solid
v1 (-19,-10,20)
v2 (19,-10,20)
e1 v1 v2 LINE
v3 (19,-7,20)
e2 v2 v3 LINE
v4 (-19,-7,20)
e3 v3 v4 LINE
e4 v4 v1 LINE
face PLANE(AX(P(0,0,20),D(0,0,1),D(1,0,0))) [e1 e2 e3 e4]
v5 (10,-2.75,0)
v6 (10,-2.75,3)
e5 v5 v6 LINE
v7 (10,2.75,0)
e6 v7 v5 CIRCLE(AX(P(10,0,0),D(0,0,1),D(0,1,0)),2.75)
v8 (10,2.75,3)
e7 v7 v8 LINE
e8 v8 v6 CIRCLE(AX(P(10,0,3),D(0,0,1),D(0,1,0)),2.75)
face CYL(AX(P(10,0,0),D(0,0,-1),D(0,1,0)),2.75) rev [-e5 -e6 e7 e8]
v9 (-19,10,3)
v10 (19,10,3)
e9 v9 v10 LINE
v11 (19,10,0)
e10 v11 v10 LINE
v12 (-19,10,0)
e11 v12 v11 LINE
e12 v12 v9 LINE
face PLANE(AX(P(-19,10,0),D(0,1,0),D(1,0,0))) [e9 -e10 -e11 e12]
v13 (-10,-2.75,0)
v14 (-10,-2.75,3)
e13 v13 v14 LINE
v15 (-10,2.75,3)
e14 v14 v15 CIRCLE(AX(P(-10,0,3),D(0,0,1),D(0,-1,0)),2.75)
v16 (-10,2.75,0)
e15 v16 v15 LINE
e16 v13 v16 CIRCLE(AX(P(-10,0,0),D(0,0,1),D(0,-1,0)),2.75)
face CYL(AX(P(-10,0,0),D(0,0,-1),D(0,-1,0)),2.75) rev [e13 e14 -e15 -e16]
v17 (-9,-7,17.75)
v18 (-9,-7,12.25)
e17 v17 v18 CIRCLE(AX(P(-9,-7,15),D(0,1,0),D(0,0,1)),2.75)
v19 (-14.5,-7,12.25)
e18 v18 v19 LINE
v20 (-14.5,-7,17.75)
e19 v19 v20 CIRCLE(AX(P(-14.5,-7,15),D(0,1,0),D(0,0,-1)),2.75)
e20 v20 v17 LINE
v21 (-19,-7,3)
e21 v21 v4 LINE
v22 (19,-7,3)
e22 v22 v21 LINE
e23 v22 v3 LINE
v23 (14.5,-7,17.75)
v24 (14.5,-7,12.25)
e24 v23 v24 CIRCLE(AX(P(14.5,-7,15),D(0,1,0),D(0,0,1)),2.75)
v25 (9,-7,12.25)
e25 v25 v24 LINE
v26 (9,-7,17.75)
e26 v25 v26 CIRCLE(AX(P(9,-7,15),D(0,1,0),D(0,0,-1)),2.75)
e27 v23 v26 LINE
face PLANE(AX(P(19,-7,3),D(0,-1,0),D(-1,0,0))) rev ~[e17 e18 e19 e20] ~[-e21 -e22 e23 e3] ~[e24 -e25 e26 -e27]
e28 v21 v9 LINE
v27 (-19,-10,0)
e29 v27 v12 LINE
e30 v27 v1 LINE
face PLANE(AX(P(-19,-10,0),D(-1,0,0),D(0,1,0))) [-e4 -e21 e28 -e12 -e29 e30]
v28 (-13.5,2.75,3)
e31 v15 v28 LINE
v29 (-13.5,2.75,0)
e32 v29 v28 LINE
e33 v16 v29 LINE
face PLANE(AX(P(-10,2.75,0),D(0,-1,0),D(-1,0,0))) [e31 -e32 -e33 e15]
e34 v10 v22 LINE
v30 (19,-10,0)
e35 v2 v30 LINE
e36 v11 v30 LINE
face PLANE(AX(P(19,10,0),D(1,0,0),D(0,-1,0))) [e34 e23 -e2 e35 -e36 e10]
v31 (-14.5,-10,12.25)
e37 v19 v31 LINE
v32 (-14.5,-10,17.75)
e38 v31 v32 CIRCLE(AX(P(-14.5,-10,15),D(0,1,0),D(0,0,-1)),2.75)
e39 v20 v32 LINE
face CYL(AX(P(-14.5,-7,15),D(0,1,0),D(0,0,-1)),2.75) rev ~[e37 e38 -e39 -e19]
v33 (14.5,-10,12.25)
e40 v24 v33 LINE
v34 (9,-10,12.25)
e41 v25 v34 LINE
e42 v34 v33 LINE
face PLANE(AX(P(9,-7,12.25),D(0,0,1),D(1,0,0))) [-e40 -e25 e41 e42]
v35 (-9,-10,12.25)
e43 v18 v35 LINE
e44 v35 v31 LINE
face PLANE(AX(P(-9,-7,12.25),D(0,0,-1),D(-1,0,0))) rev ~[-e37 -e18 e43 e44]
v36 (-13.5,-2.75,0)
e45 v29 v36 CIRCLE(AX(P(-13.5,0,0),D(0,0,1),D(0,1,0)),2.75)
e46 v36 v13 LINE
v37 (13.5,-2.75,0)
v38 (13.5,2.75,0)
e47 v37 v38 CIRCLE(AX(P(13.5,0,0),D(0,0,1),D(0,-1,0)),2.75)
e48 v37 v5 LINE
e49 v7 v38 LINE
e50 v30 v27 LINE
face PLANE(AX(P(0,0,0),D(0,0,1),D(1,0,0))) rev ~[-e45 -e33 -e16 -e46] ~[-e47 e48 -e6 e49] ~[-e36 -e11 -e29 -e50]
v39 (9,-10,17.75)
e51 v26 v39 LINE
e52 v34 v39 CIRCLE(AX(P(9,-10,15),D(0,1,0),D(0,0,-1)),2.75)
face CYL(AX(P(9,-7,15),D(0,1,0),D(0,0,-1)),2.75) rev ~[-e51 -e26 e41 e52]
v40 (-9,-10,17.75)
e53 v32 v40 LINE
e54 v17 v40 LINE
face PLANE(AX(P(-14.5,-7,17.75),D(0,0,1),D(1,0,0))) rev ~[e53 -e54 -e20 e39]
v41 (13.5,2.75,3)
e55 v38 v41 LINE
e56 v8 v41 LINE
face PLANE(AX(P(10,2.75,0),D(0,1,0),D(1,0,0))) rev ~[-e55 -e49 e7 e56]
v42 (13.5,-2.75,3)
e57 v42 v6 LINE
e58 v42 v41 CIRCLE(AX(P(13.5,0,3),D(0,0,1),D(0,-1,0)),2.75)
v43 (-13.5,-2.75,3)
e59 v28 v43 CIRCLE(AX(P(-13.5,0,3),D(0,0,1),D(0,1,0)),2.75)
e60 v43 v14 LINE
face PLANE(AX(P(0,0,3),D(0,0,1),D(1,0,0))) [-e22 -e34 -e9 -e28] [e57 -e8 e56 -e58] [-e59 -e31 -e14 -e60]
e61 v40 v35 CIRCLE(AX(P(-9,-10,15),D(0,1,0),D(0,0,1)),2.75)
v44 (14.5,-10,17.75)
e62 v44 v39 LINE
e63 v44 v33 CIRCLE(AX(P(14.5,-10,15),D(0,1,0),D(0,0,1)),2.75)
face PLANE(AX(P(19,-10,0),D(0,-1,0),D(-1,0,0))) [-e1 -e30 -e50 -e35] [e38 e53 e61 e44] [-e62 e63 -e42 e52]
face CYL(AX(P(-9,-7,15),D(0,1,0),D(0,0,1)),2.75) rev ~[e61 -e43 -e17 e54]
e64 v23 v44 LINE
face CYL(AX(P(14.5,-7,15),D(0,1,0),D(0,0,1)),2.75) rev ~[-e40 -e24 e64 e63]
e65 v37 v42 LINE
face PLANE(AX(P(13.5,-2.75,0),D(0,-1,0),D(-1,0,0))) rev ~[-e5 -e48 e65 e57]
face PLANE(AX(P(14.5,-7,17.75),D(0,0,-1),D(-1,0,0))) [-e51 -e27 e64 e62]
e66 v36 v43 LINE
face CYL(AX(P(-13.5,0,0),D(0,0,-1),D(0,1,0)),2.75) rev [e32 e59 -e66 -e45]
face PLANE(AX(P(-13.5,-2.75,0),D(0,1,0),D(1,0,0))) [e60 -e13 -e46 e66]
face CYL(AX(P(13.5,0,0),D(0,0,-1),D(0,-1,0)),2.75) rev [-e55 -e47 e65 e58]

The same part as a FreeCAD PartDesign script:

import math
import FreeCAD as App
import Part
import Sketcher

doc = App.newDocument("Part")
body = doc.addObject("PartDesign::Body", "Body")

# Sketch on XY plane
sketch1 = doc.addObject("Sketcher::SketchObject", "Sketch")
body.addObject(sketch1)
sketch1.AttachmentSupport = (doc.XY_Plane, [""])
sketch1.MapMode = "FlatFace"
sketch1.addGeometry(Part.LineSegment(App.Vector(19, 10, 0), App.Vector(-19, 10, 0)), False)
sketch1.addGeometry(Part.LineSegment(App.Vector(-19, 10, 0), App.Vector(-19, -10, 0)), False)
sketch1.addGeometry(Part.LineSegment(App.Vector(-19, -10, 0), App.Vector(19, -10, 0)), False)
sketch1.addGeometry(Part.LineSegment(App.Vector(19, -10, 0), App.Vector(19, 10, 0)), False)
sketch1.addGeometry(Part.LineSegment(App.Vector(-10, -2.8, 0), App.Vector(-13.5, -2.8, 0)), False)
sketch1.addGeometry(Part.ArcOfCircle(Part.Circle(App.Vector(-13.5, 0, 0), App.Vector(0, 0, 1), 2.8), math.radians(90), math.radians(270)), False)
sketch1.addGeometry(Part.LineSegment(App.Vector(-13.5, 2.8, 0), App.Vector(-10, 2.8, 0)), False)
sketch1.addGeometry(Part.ArcOfCircle(Part.Circle(App.Vector(-10, 0, 0), App.Vector(0, 0, 1), 2.8), math.radians(-90), math.radians(90)), False)
sketch1.addGeometry(Part.ArcOfCircle(Part.Circle(App.Vector(13.5, 0, 0), App.Vector(0, 0, 1), 2.8), math.radians(-90), math.radians(90)), False)
sketch1.addGeometry(Part.LineSegment(App.Vector(13.5, -2.8, 0), App.Vector(10, -2.8, 0)), False)
sketch1.addGeometry(Part.ArcOfCircle(Part.Circle(App.Vector(10, 0, 0), App.Vector(0, 0, 1), 2.8), math.radians(90), math.radians(270)), False)
sketch1.addGeometry(Part.LineSegment(App.Vector(10, 2.8, 0), App.Vector(13.5, 2.8, 0)), False)
sketch1.addConstraint(Sketcher.Constraint("Coincident", 0, 2, 1, 1))
sketch1.addConstraint(Sketcher.Constraint("Coincident", 1, 2, 2, 1))
sketch1.addConstraint(Sketcher.Constraint("Coincident", 2, 2, 3, 1))
sketch1.addConstraint(Sketcher.Constraint("Coincident", 3, 2, 0, 1))
sketch1.addConstraint(Sketcher.Constraint("Tangent", 4, 2, 5, 2))
sketch1.addConstraint(Sketcher.Constraint("Tangent", 5, 1, 6, 1))
sketch1.addConstraint(Sketcher.Constraint("Tangent", 6, 2, 7, 2))
sketch1.addConstraint(Sketcher.Constraint("Tangent", 7, 1, 4, 1))
sketch1.addConstraint(Sketcher.Constraint("Tangent", 8, 1, 9, 1))
sketch1.addConstraint(Sketcher.Constraint("Tangent", 9, 2, 10, 2))
sketch1.addConstraint(Sketcher.Constraint("Tangent", 10, 1, 11, 1))
sketch1.addConstraint(Sketcher.Constraint("Tangent", 11, 2, 8, 2))
sketch1.addConstraint(Sketcher.Constraint("Horizontal", 0))
sketch1.addConstraint(Sketcher.Constraint("Vertical", 1))
sketch1.addConstraint(Sketcher.Constraint("Horizontal", 2))
sketch1.addConstraint(Sketcher.Constraint("Vertical", 3))
sketch1.addConstraint(Sketcher.Constraint("Horizontal", 4))
sketch1.addConstraint(Sketcher.Constraint("Horizontal", 6))
sketch1.addConstraint(Sketcher.Constraint("Horizontal", 9))
sketch1.addConstraint(Sketcher.Constraint("Horizontal", 11))
sketch1.addConstraint(Sketcher.Constraint("Equal", 7, 8))
sketch1.addConstraint(Sketcher.Constraint("Symmetric", 5, 3, 8, 3, -1, 1))
sketch1.addConstraint(Sketcher.Constraint("Symmetric", 0, 2, 2, 2, -1, 1))
sketch1.addConstraint(Sketcher.Constraint("Symmetric", 7, 3, 10, 3, -2))
sketch1.addConstraint(Sketcher.Constraint("DistanceX", 0, 2, 0, 1, 38.0))
sketch1.addConstraint(Sketcher.Constraint("DistanceY", 1, 2, 1, 1, 20.0))
sketch1.addConstraint(Sketcher.Constraint("Radius", 5, 2.75))
sketch1.addConstraint(Sketcher.Constraint("DistanceX", 4, 2, 4, 1, 3.5))
sketch1.addConstraint(Sketcher.Constraint("DistanceX", 7, 3, -1, 1, 10.0))
pad1 = doc.addObject("PartDesign::Pad", "Pad")
body.addObject(pad1)
pad1.Profile = sketch1
pad1.Length = 3

# Sketch on XY plane
sketch2 = doc.addObject("Sketcher::SketchObject", "Sketch001")
body.addObject(sketch2)
sketch2.AttachmentSupport = (doc.XY_Plane, [""])
sketch2.MapMode = "FlatFace"
sketch2.AttachmentOffset = App.Placement(App.Vector(0, 0, 3), App.Rotation())
sketch2.addGeometry(Part.LineSegment(App.Vector(-19, -10, 0), App.Vector(19, -10, 0)), False)
sketch2.addGeometry(Part.LineSegment(App.Vector(19, -10, 0), App.Vector(19, -7, 0)), False)
sketch2.addGeometry(Part.LineSegment(App.Vector(19, -7, 0), App.Vector(-19, -7, 0)), False)
sketch2.addGeometry(Part.LineSegment(App.Vector(-19, -7, 0), App.Vector(-19, -10, 0)), False)
sketch2.addConstraint(Sketcher.Constraint("Coincident", 0, 2, 1, 1))
sketch2.addConstraint(Sketcher.Constraint("Coincident", 1, 2, 2, 1))
sketch2.addConstraint(Sketcher.Constraint("Coincident", 2, 2, 3, 1))
sketch2.addConstraint(Sketcher.Constraint("Coincident", 3, 2, 0, 1))
sketch2.addConstraint(Sketcher.Constraint("Horizontal", 0))
sketch2.addConstraint(Sketcher.Constraint("Vertical", 1))
sketch2.addConstraint(Sketcher.Constraint("Horizontal", 2))
sketch2.addConstraint(Sketcher.Constraint("Vertical", 3))
sketch2.addConstraint(Sketcher.Constraint("DistanceY", 1, 1, 1, 2, 3.0))
sketch2.addConstraint(Sketcher.Constraint("DistanceX", 0, 1, 0, 2, 38.0))
sketch2.addConstraint(Sketcher.Constraint("DistanceX", -1, 1, 0, 2, 19.0))
sketch2.addConstraint(Sketcher.Constraint("DistanceY", 0, 2, -1, 1, 10.0))
pad2 = doc.addObject("PartDesign::Pad", "Pad001")
body.addObject(pad2)
pad2.Profile = sketch2
pad2.Length = 17

# Sketch on XZ plane
sketch3 = doc.addObject("Sketcher::SketchObject", "Sketch002")
body.addObject(sketch3)
sketch3.AttachmentSupport = (doc.XZ_Plane, [""])
sketch3.MapMode = "FlatFace"
sketch3.AttachmentOffset = App.Placement(App.Vector(0, 0, 7), App.Rotation())
sketch3.addGeometry(Part.ArcOfCircle(Part.Circle(App.Vector(-14.5, 15, 0), App.Vector(0, 0, 1), 2.8), math.radians(90), math.radians(270)), False)
sketch3.addGeometry(Part.LineSegment(App.Vector(-14.5, 17.8, 0), App.Vector(-9, 17.8, 0)), False)
sketch3.addGeometry(Part.ArcOfCircle(Part.Circle(App.Vector(-9, 15, 0), App.Vector(0, 0, 1), 2.8), math.radians(-90), math.radians(90)), False)
sketch3.addGeometry(Part.LineSegment(App.Vector(-9, 12.2, 0), App.Vector(-14.5, 12.2, 0)), False)
sketch3.addGeometry(Part.LineSegment(App.Vector(9, 17.8, 0), App.Vector(14.5, 17.8, 0)), False)
sketch3.addGeometry(Part.ArcOfCircle(Part.Circle(App.Vector(14.5, 15, 0), App.Vector(0, 0, 1), 2.8), math.radians(-90), math.radians(90)), False)
sketch3.addGeometry(Part.LineSegment(App.Vector(14.5, 12.2, 0), App.Vector(9, 12.2, 0)), False)
sketch3.addGeometry(Part.ArcOfCircle(Part.Circle(App.Vector(9, 15, 0), App.Vector(0, 0, 1), 2.8), math.radians(90), math.radians(270)), False)
sketch3.addConstraint(Sketcher.Constraint("Tangent", 0, 1, 1, 1))
sketch3.addConstraint(Sketcher.Constraint("Tangent", 1, 2, 2, 2))
sketch3.addConstraint(Sketcher.Constraint("Tangent", 2, 1, 3, 1))
sketch3.addConstraint(Sketcher.Constraint("Tangent", 3, 2, 0, 2))
sketch3.addConstraint(Sketcher.Constraint("Tangent", 4, 2, 5, 2))
sketch3.addConstraint(Sketcher.Constraint("Tangent", 5, 1, 6, 1))
sketch3.addConstraint(Sketcher.Constraint("Tangent", 6, 2, 7, 2))
sketch3.addConstraint(Sketcher.Constraint("Tangent", 7, 1, 4, 1))
sketch3.addConstraint(Sketcher.Constraint("Horizontal", 1))
sketch3.addConstraint(Sketcher.Constraint("Horizontal", 3))
sketch3.addConstraint(Sketcher.Constraint("Horizontal", 4))
sketch3.addConstraint(Sketcher.Constraint("Horizontal", 6))
sketch3.addConstraint(Sketcher.Constraint("Equal", 2, 5))
sketch3.addConstraint(Sketcher.Constraint("Symmetric", 0, 3, 5, 3, -2))
sketch3.addConstraint(Sketcher.Constraint("Equal", 3, 4))
sketch3.addConstraint(Sketcher.Constraint("Radius", 0, 2.75))
sketch3.addConstraint(Sketcher.Constraint("DistanceX", 1, 1, 1, 2, 5.5))
sketch3.addConstraint(Sketcher.Constraint("DistanceX", 2, 3, 5, 3, 23.5))
sketch3.addConstraint(Sketcher.Constraint("DistanceY", -1, 1, 0, 3, 15.0))
pocket1 = doc.addObject("PartDesign::Pocket", "Pocket")
body.addObject(pocket1)
pocket1.Profile = sketch3
pocket1.Length = 3
pocket1.Reversed = True

doc.recompute()
